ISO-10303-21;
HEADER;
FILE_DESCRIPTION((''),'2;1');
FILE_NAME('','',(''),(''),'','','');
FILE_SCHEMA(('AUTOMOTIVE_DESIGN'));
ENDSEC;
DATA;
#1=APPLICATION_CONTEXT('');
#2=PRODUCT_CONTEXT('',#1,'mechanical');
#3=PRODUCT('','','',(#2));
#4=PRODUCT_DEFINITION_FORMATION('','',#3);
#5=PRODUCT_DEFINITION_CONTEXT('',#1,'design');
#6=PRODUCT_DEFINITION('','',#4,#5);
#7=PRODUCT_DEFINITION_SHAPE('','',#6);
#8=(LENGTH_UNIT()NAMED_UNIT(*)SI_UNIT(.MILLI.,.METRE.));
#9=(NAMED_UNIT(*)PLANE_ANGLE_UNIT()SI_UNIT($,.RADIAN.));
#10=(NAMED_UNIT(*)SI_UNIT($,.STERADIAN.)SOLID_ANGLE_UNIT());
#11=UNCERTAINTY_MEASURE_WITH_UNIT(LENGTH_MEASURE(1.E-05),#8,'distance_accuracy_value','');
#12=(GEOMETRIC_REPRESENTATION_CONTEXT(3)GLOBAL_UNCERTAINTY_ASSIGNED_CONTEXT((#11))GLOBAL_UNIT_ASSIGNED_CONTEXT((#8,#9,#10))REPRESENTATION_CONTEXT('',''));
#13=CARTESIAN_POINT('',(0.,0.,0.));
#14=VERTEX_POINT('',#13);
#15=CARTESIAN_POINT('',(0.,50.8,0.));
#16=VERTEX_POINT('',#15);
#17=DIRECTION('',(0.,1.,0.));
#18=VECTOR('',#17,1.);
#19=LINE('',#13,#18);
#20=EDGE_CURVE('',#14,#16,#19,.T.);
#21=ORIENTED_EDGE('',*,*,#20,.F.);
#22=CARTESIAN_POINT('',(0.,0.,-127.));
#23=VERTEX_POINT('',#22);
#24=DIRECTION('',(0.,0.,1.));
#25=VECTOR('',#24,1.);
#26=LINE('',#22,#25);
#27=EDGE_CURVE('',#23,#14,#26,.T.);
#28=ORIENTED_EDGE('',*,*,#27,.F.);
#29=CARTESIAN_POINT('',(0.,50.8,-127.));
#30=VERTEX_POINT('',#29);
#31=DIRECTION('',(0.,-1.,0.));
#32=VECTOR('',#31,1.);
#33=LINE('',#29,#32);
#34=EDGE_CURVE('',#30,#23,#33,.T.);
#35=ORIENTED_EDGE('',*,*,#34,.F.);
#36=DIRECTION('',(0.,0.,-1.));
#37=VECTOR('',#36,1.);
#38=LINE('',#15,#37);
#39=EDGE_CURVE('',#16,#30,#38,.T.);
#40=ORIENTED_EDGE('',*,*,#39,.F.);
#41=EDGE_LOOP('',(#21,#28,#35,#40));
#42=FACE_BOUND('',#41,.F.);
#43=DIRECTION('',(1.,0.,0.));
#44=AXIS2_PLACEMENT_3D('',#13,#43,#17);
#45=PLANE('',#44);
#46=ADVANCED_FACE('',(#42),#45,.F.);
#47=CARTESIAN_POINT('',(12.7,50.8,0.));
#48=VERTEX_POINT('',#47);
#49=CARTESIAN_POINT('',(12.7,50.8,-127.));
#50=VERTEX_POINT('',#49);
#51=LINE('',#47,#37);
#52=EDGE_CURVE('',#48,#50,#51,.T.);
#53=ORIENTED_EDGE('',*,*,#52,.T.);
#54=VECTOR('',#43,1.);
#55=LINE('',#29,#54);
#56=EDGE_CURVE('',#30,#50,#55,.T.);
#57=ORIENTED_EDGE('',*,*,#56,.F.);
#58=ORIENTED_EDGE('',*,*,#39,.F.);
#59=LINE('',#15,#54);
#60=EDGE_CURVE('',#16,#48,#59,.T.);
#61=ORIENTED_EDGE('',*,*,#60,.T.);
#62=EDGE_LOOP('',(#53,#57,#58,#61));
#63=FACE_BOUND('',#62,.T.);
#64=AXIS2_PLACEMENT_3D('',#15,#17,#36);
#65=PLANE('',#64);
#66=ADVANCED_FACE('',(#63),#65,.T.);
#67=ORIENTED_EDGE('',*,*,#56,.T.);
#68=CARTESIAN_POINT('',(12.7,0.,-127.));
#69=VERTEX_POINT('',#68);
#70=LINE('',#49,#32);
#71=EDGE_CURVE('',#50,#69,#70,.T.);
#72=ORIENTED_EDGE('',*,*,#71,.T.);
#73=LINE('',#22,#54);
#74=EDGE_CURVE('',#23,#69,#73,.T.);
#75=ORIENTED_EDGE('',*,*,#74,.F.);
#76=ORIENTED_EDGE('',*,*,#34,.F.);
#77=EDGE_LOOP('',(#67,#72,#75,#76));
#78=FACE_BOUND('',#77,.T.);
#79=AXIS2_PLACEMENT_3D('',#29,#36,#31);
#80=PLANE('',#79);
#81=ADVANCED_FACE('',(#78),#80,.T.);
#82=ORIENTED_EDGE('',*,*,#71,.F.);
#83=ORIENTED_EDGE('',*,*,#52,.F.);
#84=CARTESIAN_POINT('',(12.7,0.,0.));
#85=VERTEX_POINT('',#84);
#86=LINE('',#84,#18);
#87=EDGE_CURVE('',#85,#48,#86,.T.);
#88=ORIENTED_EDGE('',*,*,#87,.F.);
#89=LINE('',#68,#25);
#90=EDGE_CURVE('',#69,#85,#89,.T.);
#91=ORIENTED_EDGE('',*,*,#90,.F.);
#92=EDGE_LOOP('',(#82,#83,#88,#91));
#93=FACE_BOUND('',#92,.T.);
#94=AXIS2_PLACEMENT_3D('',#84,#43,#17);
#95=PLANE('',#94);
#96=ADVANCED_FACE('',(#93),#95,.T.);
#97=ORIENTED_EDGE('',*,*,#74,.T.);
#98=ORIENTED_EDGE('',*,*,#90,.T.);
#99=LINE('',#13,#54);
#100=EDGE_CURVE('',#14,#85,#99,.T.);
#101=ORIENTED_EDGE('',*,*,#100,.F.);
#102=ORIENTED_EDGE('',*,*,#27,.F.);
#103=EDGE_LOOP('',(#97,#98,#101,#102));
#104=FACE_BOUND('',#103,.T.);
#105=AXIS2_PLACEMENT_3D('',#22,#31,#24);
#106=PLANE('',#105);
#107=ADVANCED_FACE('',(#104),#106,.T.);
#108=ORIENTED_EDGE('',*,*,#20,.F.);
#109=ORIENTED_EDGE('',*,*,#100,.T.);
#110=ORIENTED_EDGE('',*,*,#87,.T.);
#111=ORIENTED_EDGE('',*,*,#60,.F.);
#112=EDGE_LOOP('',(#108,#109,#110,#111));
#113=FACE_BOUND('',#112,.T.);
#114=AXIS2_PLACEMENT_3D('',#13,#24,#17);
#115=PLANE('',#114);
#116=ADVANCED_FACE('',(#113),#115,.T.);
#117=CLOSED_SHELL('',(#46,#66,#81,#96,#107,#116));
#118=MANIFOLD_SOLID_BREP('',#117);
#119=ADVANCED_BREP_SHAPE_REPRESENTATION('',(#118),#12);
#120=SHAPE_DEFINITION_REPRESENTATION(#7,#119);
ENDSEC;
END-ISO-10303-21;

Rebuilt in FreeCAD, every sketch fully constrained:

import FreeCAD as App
import Part
import Sketcher
Q = App.Units.Quantity

doc = App.newDocument("Part")
body = doc.addObject("PartDesign::Body", "Body")

sketch1 = body.newObject("Sketcher::SketchObject", "Sketch")
sketch1.AttachmentSupport = (doc.getObject("YZ_Plane"), [""])
sketch1.MapMode = "FlatFace"
sketch1.addGeometry([
    Part.LineSegment(App.Vector(50.8, 0, 0), App.Vector(0, 0, 0)),
    Part.LineSegment(App.Vector(0, 0, 0), App.Vector(0, -127, 0)),
    Part.LineSegment(App.Vector(0, -127, 0), App.Vector(50.8, -127, 0)),
    Part.LineSegment(App.Vector(50.8, -127, 0), App.Vector(50.8, 0, 0)),
], False)
sketch1.addConstraint([
    Sketcher.Constraint("Coincident", 0, 2, 1, 1),
    Sketcher.Constraint("Coincident", 1, 2, 2, 1),
    Sketcher.Constraint("Coincident", 2, 2, 3, 1),
    Sketcher.Constraint("Coincident", 3, 2, 0, 1),
    Sketcher.Constraint("Horizontal", 0),
    Sketcher.Constraint("Vertical", 1),
    Sketcher.Constraint("Horizontal", 2),
    Sketcher.Constraint("Vertical", 3),
    Sketcher.Constraint("Coincident", 0, 2, -1, 1),
    Sketcher.Constraint("DistanceX", 0, 2, 0, 1, Q("2 in")),
    Sketcher.Constraint("DistanceY", 1, 2, 1, 1, Q("5 in")),
])
pad1 = body.newObject("PartDesign::Pad", "Pad")
pad1.Profile = sketch1
pad1.Length = Q("0.5 in")

doc.recompute()
